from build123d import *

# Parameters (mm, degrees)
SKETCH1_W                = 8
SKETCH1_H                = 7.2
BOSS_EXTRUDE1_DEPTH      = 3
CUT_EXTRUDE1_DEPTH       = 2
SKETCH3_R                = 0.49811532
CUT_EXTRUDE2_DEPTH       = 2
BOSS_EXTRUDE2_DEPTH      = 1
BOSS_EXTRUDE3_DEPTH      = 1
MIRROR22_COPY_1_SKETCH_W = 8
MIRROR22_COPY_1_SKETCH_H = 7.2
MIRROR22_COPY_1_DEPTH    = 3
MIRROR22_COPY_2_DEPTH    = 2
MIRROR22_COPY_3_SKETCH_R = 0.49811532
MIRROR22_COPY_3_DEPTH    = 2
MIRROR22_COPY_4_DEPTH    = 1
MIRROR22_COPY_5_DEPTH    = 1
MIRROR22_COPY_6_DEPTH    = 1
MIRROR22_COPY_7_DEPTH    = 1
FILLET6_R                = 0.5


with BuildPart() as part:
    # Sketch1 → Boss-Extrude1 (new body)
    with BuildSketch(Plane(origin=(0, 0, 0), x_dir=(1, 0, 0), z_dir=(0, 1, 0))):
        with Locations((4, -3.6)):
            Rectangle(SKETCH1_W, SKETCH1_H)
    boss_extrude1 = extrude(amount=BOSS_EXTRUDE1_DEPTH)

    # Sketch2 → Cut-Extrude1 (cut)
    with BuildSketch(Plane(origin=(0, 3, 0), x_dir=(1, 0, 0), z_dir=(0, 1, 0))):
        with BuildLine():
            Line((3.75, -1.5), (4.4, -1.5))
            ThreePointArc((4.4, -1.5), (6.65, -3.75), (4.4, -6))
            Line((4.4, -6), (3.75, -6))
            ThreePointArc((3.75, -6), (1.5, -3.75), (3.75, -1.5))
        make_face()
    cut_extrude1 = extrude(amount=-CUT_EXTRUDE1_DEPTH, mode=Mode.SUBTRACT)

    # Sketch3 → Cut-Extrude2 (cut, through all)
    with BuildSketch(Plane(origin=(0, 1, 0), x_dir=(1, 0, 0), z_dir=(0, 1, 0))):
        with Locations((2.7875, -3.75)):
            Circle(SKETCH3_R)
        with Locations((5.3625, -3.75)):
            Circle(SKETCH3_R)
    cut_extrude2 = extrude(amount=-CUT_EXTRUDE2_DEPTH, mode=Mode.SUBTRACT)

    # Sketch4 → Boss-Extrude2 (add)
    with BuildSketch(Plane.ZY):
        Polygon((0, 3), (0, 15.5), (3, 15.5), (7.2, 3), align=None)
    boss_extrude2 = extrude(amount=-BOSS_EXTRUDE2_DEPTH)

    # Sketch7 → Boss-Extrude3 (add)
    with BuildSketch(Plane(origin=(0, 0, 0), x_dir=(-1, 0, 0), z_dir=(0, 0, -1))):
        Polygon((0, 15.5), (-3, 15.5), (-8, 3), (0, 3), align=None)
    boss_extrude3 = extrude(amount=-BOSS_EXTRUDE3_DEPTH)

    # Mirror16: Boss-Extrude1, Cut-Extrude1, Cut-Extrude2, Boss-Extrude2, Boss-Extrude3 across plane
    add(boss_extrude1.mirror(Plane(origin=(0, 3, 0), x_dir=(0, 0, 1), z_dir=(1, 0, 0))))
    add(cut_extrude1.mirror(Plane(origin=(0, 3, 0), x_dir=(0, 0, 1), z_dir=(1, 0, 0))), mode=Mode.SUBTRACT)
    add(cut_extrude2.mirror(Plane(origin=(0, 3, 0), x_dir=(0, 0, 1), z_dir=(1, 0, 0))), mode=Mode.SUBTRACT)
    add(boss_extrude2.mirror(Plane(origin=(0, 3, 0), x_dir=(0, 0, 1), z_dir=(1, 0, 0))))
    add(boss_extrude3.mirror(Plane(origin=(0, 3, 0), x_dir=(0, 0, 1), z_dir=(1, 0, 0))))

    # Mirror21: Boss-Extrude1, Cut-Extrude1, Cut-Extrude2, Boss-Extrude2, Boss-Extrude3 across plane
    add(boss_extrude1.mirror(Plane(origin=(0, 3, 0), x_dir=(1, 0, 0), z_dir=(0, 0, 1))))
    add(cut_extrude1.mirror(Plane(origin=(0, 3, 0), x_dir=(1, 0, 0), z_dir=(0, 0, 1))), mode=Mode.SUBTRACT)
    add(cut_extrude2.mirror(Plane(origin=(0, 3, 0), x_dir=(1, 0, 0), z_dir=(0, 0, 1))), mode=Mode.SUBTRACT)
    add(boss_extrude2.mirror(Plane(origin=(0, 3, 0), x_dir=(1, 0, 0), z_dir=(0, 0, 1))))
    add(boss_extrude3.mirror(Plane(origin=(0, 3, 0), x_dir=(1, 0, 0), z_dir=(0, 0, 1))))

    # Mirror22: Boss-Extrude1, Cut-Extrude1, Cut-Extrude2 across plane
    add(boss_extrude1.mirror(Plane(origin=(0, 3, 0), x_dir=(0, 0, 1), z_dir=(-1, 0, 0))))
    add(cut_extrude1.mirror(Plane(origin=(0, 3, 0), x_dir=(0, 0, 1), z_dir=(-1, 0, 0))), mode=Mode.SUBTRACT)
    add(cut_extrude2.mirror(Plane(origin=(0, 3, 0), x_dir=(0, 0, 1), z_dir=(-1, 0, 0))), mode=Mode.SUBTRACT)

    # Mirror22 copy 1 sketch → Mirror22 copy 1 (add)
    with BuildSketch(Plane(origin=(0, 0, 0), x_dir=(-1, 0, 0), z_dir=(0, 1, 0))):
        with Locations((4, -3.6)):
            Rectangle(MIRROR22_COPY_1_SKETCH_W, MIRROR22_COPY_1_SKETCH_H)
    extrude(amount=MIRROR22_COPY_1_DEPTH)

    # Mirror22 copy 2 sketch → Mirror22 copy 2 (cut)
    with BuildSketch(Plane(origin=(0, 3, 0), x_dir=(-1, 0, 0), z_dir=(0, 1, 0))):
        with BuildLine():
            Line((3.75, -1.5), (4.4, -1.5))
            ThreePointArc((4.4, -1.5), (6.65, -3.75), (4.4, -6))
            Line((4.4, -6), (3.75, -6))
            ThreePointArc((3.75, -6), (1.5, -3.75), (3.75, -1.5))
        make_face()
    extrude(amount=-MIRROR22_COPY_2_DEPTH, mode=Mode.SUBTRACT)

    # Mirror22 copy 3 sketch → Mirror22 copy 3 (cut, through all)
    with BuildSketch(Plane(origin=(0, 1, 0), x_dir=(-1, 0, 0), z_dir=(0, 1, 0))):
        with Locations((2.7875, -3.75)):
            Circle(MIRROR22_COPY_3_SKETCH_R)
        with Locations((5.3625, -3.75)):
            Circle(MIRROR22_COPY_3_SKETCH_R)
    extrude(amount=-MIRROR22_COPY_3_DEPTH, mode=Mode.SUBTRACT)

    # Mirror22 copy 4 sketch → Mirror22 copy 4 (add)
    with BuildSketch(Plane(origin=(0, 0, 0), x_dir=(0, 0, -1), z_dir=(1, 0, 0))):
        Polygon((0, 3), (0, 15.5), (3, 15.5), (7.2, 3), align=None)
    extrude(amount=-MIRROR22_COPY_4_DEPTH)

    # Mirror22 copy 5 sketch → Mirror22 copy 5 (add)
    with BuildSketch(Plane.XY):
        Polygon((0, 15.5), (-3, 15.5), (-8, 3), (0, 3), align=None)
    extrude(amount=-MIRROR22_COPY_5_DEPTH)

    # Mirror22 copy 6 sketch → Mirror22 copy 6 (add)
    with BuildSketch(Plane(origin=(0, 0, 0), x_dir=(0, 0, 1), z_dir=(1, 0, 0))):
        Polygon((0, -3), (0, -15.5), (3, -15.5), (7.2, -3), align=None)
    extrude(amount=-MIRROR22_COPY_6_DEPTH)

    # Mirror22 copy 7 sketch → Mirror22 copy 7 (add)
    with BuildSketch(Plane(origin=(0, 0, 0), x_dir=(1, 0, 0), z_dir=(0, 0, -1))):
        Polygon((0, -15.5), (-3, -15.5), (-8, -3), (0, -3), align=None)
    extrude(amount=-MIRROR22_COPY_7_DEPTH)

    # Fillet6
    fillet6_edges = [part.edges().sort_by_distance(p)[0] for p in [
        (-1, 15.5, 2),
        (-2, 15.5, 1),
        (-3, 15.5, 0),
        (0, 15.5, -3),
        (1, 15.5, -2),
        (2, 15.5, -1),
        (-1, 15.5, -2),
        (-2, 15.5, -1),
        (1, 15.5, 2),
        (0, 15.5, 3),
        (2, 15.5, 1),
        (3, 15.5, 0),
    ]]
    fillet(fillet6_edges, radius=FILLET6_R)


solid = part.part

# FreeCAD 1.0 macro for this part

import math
import FreeCAD as App
import Part
import Sketcher
from FreeCAD import Vector
Q = App.Units.Quantity


def edges_at(feature, points):
    """Names of the edges that pass closest to the given points."""
    edges = feature.Shape.Edges
    near = lambda p: min(range(len(edges)), key=lambda i: edges[i].distToShape(Part.Vertex(*p))[0])
    return sorted({f"Edge{near(p) + 1}" for p in points})

doc = App.newDocument("Part")
body = doc.addObject("PartDesign::Body", "Body")

sketch1 = body.newObject("Sketcher::SketchObject", "Sketch")
sketch1.AttachmentSupport = (doc.getObject("XZ_Plane"), [""])
sketch1.MapMode = "FlatFace"
sketch1.addGeometry([
    Part.LineSegment(Vector(0, 0, 0), Vector(0, 7, 0)),
    Part.LineSegment(Vector(0, 7, 0), Vector(8, 7, 0)),
    Part.LineSegment(Vector(8, 7, 0), Vector(8, 0, 0)),
    Part.LineSegment(Vector(8, 0, 0), Vector(0, 0, 0)),
], False)
sketch1.addConstraint([
    Sketcher.Constraint("Coincident", 0, 2, 1, 1),
    Sketcher.Constraint("Coincident", 1, 2, 2, 1),
    Sketcher.Constraint("Coincident", 2, 2, 3, 1),
    Sketcher.Constraint("Coincident", 3, 2, 0, 1),
    Sketcher.Constraint("Vertical", 0),
    Sketcher.Constraint("Horizontal", 1),
    Sketcher.Constraint("Vertical", 2),
    Sketcher.Constraint("Horizontal", 3),
    Sketcher.Constraint("Coincident", 3, 2, -1, 1),
    Sketcher.Constraint("DistanceX", 1, 1, 1, 2, Q("8 mm")),
    Sketcher.Constraint("DistanceY", 0, 1, 0, 2, Q("7.2 mm")),
])
pad1 = body.newObject("PartDesign::Pad", "Pad")
pad1.Profile = sketch1
pad1.Length = 3
pad1.Reversed = True

sketch2 = body.newObject("Sketcher::SketchObject", "Sketch001")
sketch2.AttachmentSupport = (doc.getObject("XZ_Plane"), [""])
sketch2.MapMode = "FlatFace"
sketch2.AttachmentOffset = App.Placement(Vector(0, 0, -3), App.Rotation())
sketch2.addGeometry([
    Part.LineSegment(Vector(4.4, 1.5, 0), Vector(3.8, 1.5, 0)),
    Part.ArcOfCircle(Part.Circle(Vector(3.8, 3.8, 0), Vector(0, 0, 1), 2.2), math.radians(90), math.radians(270)),
    Part.LineSegment(Vector(3.8, 6, 0), Vector(4.4, 6, 0)),
    Part.ArcOfCircle(Part.Circle(Vector(4.4, 3.8, 0), Vector(0, 0, 1), 2.2), math.radians(-90), math.radians(90)),
], False)
sketch2.addConstraint([
    Sketcher.Constraint("Tangent", 0, 2, 1, 2),
    Sketcher.Constraint("Tangent", 1, 1, 2, 1),
    Sketcher.Constraint("Tangent", 2, 2, 3, 2),
    Sketcher.Constraint("Tangent", 3, 1, 0, 1),
    Sketcher.Constraint("Horizontal", 0),
    Sketcher.Constraint("Horizontal", 2),
    Sketcher.Constraint("Radius", 1, Q("2.25 mm")),
    Sketcher.Constraint("DistanceY", -1, 1, 1, 1, Q("6 mm")),
    Sketcher.Constraint("DistanceX", 0, 2, 0, 1, Q("0.65 mm")),
    Sketcher.Constraint("DistanceX", -1, 1, 3, 3, Q("4.4 mm")),
])
pocket1 = body.newObject("PartDesign::Pocket", "Pocket")
pocket1.Profile = sketch2
pocket1.Length = 2
pocket1.Reversed = True

sketch3 = body.newObject("Sketcher::SketchObject", "Sketch002")
sketch3.AttachmentSupport = (doc.getObject("XZ_Plane"), [""])
sketch3.MapMode = "FlatFace"
sketch3.AttachmentOffset = App.Placement(Vector(0, 0, -1), App.Rotation())
sketch3.addGeometry([
    Part.Circle(Vector(2.79, 3.75, 0), Vector(0, 0, 1), 0.5),
    Part.Circle(Vector(5.36, 3.75, 0), Vector(0, 0, 1), 0.5),
], False)
sketch3.addConstraint([
    Sketcher.Constraint("Equal", 0, 1),
    Sketcher.Constraint("Horizontal", 0, 3, 1, 3),
    Sketcher.Constraint("Diameter", 0, Q("0.996231 mm")),
    Sketcher.Constraint("DistanceY", -1, 1, 0, 3, Q("3.75 mm")),
    Sketcher.Constraint("DistanceX", 0, 3, 1, 3, Q("2.575 mm")),
    Sketcher.Constraint("DistanceX", -1, 1, 0, 3, Q("2.7875 mm")),
])
pocket2 = body.newObject("PartDesign::Pocket", "Pocket001")
pocket2.Profile = sketch3
pocket2.Type = "ThroughAll"
pocket2.Reversed = True

sketch4 = body.newObject("Sketcher::SketchObject", "Sketch003")
sketch4.AttachmentSupport = (doc.getObject("YZ_Plane"), [""])
sketch4.MapMode = "FlatFace"
sketch4.addGeometry([
    Part.LineSegment(Vector(15.5, 0, 0), Vector(3, 0, 0)),
    Part.LineSegment(Vector(3, 0, 0), Vector(3, 7.2, 0)),
    Part.LineSegment(Vector(3, 7.2, 0), Vector(15.5, 3, 0)),
    Part.LineSegment(Vector(15.5, 3, 0), Vector(15.5, 0, 0)),
], False)
sketch4.addConstraint([
    Sketcher.Constraint("Coincident", 0, 2, 1, 1),
    Sketcher.Constraint("Coincident", 1, 2, 2, 1),
    Sketcher.Constraint("Coincident", 2, 2, 3, 1),
    Sketcher.Constraint("Coincident", 3, 2, 0, 1),
    Sketcher.Constraint("Horizontal", 0),
    Sketcher.Constraint("Vertical", 1),
    Sketcher.Constraint("Vertical", 3),
    Sketcher.Constraint("PointOnObject", 0, 2, -1),
    Sketcher.Constraint("DistanceY", 3, 2, 3, 1, Q("3 mm")),
    Sketcher.Constraint("DistanceX", 0, 2, 0, 1, Q("12.5 mm")),
    Sketcher.Constraint("DistanceY", 1, 1, 1, 2, Q("7.2 mm")),
    Sketcher.Constraint("DistanceX", -1, 1, 0, 2, Q("3 mm")),
])
pad2 = body.newObject("PartDesign::Pad", "Pad001")
pad2.Profile = sketch4
pad2.Length = 1

sketch5 = body.newObject("Sketcher::SketchObject", "Sketch004")
sketch5.AttachmentSupport = (doc.getObject("XY_Plane"), [""])
sketch5.MapMode = "FlatFace"
sketch5.addGeometry([
    Part.LineSegment(Vector(0, 15.5, 0), Vector(3, 15.5, 0)),
    Part.LineSegment(Vector(3, 15.5, 0), Vector(8, 3, 0)),
    Part.LineSegment(Vector(8, 3, 0), Vector(0, 3, 0)),
    Part.LineSegment(Vector(0, 3, 0), Vector(0, 15.5, 0)),
], False)
sketch5.addConstraint([
    Sketcher.Constraint("Coincident", 0, 2, 1, 1),
    Sketcher.Constraint("Coincident", 1, 2, 2, 1),
    Sketcher.Constraint("Coincident", 2, 2, 3, 1),
    Sketcher.Constraint("Coincident", 3, 2, 0, 1),
    Sketcher.Constraint("Horizontal", 0),
    Sketcher.Constraint("Horizontal", 2),
    Sketcher.Constraint("Vertical", 3),
    Sketcher.Constraint("PointOnObject", 2, 2, -2),
    Sketcher.Constraint("DistanceX", 0, 1, 0, 2, Q("3 mm")),
    Sketcher.Constraint("DistanceX", 2, 2, 2, 1, Q("8 mm")),
    Sketcher.Constraint("DistanceY", 3, 1, 3, 2, Q("12.5 mm")),
    Sketcher.Constraint("DistanceY", -1, 1, 1, 2, Q("3 mm")),
])
pad3 = body.newObject("PartDesign::Pad", "Pad002")
pad3.Profile = sketch5
pad3.Length = 1
doc.recompute()

mirrored = body.newObject("PartDesign::Mirrored", "Mirrored")
mirrored.Originals = [pad1, pocket1, pocket2, pad2, pad3]
mirrored.MirrorPlane = (doc.getObject("YZ_Plane"), [""])
body.Tip = mirrored
doc.recompute()

mirrored2 = body.newObject("PartDesign::Mirrored", "Mirrored001")
mirrored2.Originals = [pad1, pocket1, pocket2, pad2, pad3]
mirrored2.MirrorPlane = (doc.getObject("XY_Plane"), [""])
body.Tip = mirrored2
doc.recompute()

mirrored3 = body.newObject("PartDesign::Mirrored", "Mirrored002")
mirrored3.Originals = [pad1, pocket1, pocket2]
mirrored3.MirrorPlane = (doc.getObject("YZ_Plane"), [""])
body.Tip = mirrored3

sketch6 = body.newObject("Sketcher::SketchObject", "Sketch005")
sketch6.AttachmentSupport = (doc.getObject("XZ_Plane"), [""])
sketch6.MapMode = "FlatFace"
sketch6.addGeometry([
    Part.LineSegment(Vector(0, 0, 0), Vector(0, -7, 0)),
    Part.LineSegment(Vector(0, -7, 0), Vector(-8, -7, 0)),
    Part.LineSegment(Vector(-8, -7, 0), Vector(-8, 0, 0)),
    Part.LineSegment(Vector(-8, 0, 0), Vector(0, 0, 0)),
], False)
sketch6.addConstraint([
    Sketcher.Constraint("Coincident", 0, 2, 1, 1),
    Sketcher.Constraint("Coincident", 1, 2, 2, 1),
    Sketcher.Constraint("Coincident", 2, 2, 3, 1),
    Sketcher.Constraint("Coincident", 3, 2, 0, 1),
    Sketcher.Constraint("Vertical", 0),
    Sketcher.Constraint("Horizontal", 1),
    Sketcher.Constraint("Vertical", 2),
    Sketcher.Constraint("Horizontal", 3),
    Sketcher.Constraint("Coincident", 3, 2, -1, 1),
    Sketcher.Constraint("DistanceX", 1, 2, 1, 1, Q("8 mm")),
    Sketcher.Constraint("DistanceY", 0, 2, 0, 1, Q("7.2 mm")),
])
pad4 = body.newObject("PartDesign::Pad", "Pad003")
pad4.Profile = sketch6
pad4.Length = 3
pad4.Reversed = True

sketch7 = body.newObject("Sketcher::SketchObject", "Sketch006")
sketch7.AttachmentSupport = (doc.getObject("XZ_Plane"), [""])
sketch7.MapMode = "FlatFace"
sketch7.AttachmentOffset = App.Placement(Vector(0, 0, -3), App.Rotation())
sketch7.addGeometry([
    Part.LineSegment(Vector(-4.4, -1.5, 0), Vector(-3.8, -1.5, 0)),
    Part.ArcOfCircle(Part.Circle(Vector(-3.8, -3.8, 0), Vector(0, 0, 1), 2.2), math.radians(-90), math.radians(90)),
    Part.LineSegment(Vector(-3.8, -6, 0), Vector(-4.4, -6, 0)),
    Part.ArcOfCircle(Part.Circle(Vector(-4.4, -3.8, 0), Vector(0, 0, 1), 2.2), math.radians(90), math.radians(270)),
], False)
sketch7.addConstraint([
    Sketcher.Constraint("Tangent", 0, 2, 1, 2),
    Sketcher.Constraint("Tangent", 1, 1, 2, 1),
    Sketcher.Constraint("Tangent", 2, 2, 3, 2),
    Sketcher.Constraint("Tangent", 3, 1, 0, 1),
    Sketcher.Constraint("Horizontal", 0),
    Sketcher.Constraint("Horizontal", 2),
    Sketcher.Constraint("Radius", 1, Q("2.25 mm")),
    Sketcher.Constraint("DistanceY", 1, 1, -1, 1, Q("6 mm")),
    Sketcher.Constraint("DistanceX", 0, 1, 0, 2, Q("0.65 mm")),
    Sketcher.Constraint("DistanceX", 3, 3, -1, 1, Q("4.4 mm")),
])
pocket3 = body.newObject("PartDesign::Pocket", "Pocket002")
pocket3.Profile = sketch7
pocket3.Length = 2
pocket3.Reversed = True

sketch8 = body.newObject("Sketcher::SketchObject", "Sketch007")
sketch8.AttachmentSupport = (doc.getObject("XZ_Plane"), [""])
sketch8.MapMode = "FlatFace"
sketch8.AttachmentOffset = App.Placement(Vector(0, 0, -1), App.Rotation())
sketch8.addGeometry([
    Part.Circle(Vector(-2.79, -3.75, 0), Vector(0, 0, 1), 0.5),
    Part.Circle(Vector(-5.36, -3.75, 0), Vector(0, 0, 1), 0.5),
], False)
sketch8.addConstraint([
    Sketcher.Constraint("Equal", 0, 1),
    Sketcher.Constraint("Horizontal", 0, 3, 1, 3),
    Sketcher.Constraint("Diameter", 0, Q("0.996231 mm")),
    Sketcher.Constraint("DistanceY", 0, 3, -1, 1, Q("3.75 mm")),
    Sketcher.Constraint("DistanceX", 1, 3, 0, 3, Q("2.575 mm")),
    Sketcher.Constraint("DistanceX", 0, 3, -1, 1, Q("2.7875 mm")),
])
pocket4 = body.newObject("PartDesign::Pocket", "Pocket003")
pocket4.Profile = sketch8
pocket4.Type = "ThroughAll"
pocket4.Reversed = True

sketch9 = body.newObject("Sketcher::SketchObject", "Sketch008")
sketch9.AttachmentSupport = (doc.getObject("YZ_Plane"), [""])
sketch9.MapMode = "FlatFace"
sketch9.addGeometry([
    Part.LineSegment(Vector(15.5, 0, 0), Vector(3, 0, 0)),
    Part.LineSegment(Vector(3, 0, 0), Vector(3, -7.2, 0)),
    Part.LineSegment(Vector(3, -7.2, 0), Vector(15.5, -3, 0)),
    Part.LineSegment(Vector(15.5, -3, 0), Vector(15.5, 0, 0)),
], False)
sketch9.addConstraint([
    Sketcher.Constraint("Coincident", 0, 2, 1, 1),
    Sketcher.Constraint("Coincident", 1, 2, 2, 1),
    Sketcher.Constraint("Coincident", 2, 2, 3, 1),
    Sketcher.Constraint("Coincident", 3, 2, 0, 1),
    Sketcher.Constraint("Horizontal", 0),
    Sketcher.Constraint("Vertical", 1),
    Sketcher.Constraint("Vertical", 3),
    Sketcher.Constraint("PointOnObject", 0, 2, -1),
    Sketcher.Constraint("DistanceY", 3, 1, 3, 2, Q("3 mm")),
    Sketcher.Constraint("DistanceX", 0, 2, 0, 1, Q("12.5 mm")),
    Sketcher.Constraint("DistanceY", 1, 2, 1, 1, Q("7.2 mm")),
    Sketcher.Constraint("DistanceX", -1, 1, 0, 2, Q("3 mm")),
])
pad5 = body.newObject("PartDesign::Pad", "Pad004")
pad5.Profile = sketch9
pad5.Length = 1
pad5.Reversed = True

sketch10 = body.newObject("Sketcher::SketchObject", "Sketch009")
sketch10.AttachmentSupport = (doc.getObject("XY_Plane"), [""])
sketch10.MapMode = "FlatFace"
sketch10.addGeometry([
    Part.LineSegment(Vector(0, 15.5, 0), Vector(-3, 15.5, 0)),
    Part.LineSegment(Vector(-3, 15.5, 0), Vector(-8, 3, 0)),
    Part.LineSegment(Vector(-8, 3, 0), Vector(0, 3, 0)),
    Part.LineSegment(Vector(0, 3, 0), Vector(0, 15.5, 0)),
], False)
sketch10.addConstraint([
    Sketcher.Constraint("Coincident", 0, 2, 1, 1),
    Sketcher.Constraint("Coincident", 1, 2, 2, 1),
    Sketcher.Constraint("Coincident", 2, 2, 3, 1),
    Sketcher.Constraint("Coincident", 3, 2, 0, 1),
    Sketcher.Constraint("Horizontal", 0),
    Sketcher.Constraint("Horizontal", 2),
    Sketcher.Constraint("Vertical", 3),
    Sketcher.Constraint("PointOnObject", 2, 2, -2),
    Sketcher.Constraint("DistanceX", 0, 2, 0, 1, Q("3 mm")),
    Sketcher.Constraint("DistanceX", 2, 1, 2, 2, Q("8 mm")),
    Sketcher.Constraint("DistanceY", 3, 1, 3, 2, Q("12.5 mm")),
    Sketcher.Constraint("DistanceY", -1, 1, 1, 2, Q("3 mm")),
])
pad6 = body.newObject("PartDesign::Pad", "Pad005")
pad6.Profile = sketch10
pad6.Length = 1
pad6.Reversed = True

sketch11 = body.newObject("Sketcher::SketchObject", "Sketch010")
sketch11.AttachmentSupport = (doc.getObject("YZ_Plane"), [""])
sketch11.MapMode = "FlatFace"
sketch11.addGeometry([
    Part.LineSegment(Vector(3, 0, 0), Vector(15.5, 0, 0)),
    Part.LineSegment(Vector(15.5, 0, 0), Vector(15.5, 3, 0)),
    Part.LineSegment(Vector(15.5, 3, 0), Vector(3, 7.2, 0)),
    Part.LineSegment(Vector(3, 7.2, 0), Vector(3, 0, 0)),
], False)
sketch11.addConstraint([
    Sketcher.Constraint("Coincident", 0, 2, 1, 1),
    Sketcher.Constraint("Coincident", 1, 2, 2, 1),
    Sketcher.Constraint("Coincident", 2, 2, 3, 1),
    Sketcher.Constraint("Coincident", 3, 2, 0, 1),
    Sketcher.Constraint("Horizontal", 0),
    Sketcher.Constraint("Vertical", 1),
    Sketcher.Constraint("Vertical", 3),
    Sketcher.Constraint("PointOnObject", 0, 2, -1),
    Sketcher.Constraint("DistanceY", 1, 1, 1, 2, Q("3 mm")),
    Sketcher.Constraint("DistanceX", 0, 1, 0, 2, Q("12.5 mm")),
    Sketcher.Constraint("DistanceY", 3, 2, 3, 1, Q("7.2 mm")),
    Sketcher.Constraint("DistanceX", -1, 1, 2, 2, Q("3 mm")),
])
pad7 = body.newObject("PartDesign::Pad", "Pad006")
pad7.Profile = sketch11
pad7.Length = 1
pad7.Reversed = True

sketch12 = body.newObject("Sketcher::SketchObject", "Sketch011")
sketch12.AttachmentSupport = (doc.getObject("XY_Plane"), [""])
sketch12.MapMode = "FlatFace"
sketch12.addGeometry([
    Part.LineSegment(Vector(-3, 15.5, 0), Vector(0, 15.5, 0)),
    Part.LineSegment(Vector(0, 15.5, 0), Vector(0, 3, 0)),
    Part.LineSegment(Vector(0, 3, 0), Vector(-8, 3, 0)),
    Part.LineSegment(Vector(-8, 3, 0), Vector(-3, 15.5, 0)),
], False)
sketch12.addConstraint([
    Sketcher.Constraint("Coincident", 0, 2, 1, 1),
    Sketcher.Constraint("Coincident", 1, 2, 2, 1),
    Sketcher.Constraint("Coincident", 2, 2, 3, 1),
    Sketcher.Constraint("Coincident", 3, 2, 0, 1),
    Sketcher.Constraint("Horizontal", 0),
    Sketcher.Constraint("Vertical", 1),
    Sketcher.Constraint("Horizontal", 2),
    Sketcher.Constraint("PointOnObject", 0, 2, -2),
    Sketcher.Constraint("DistanceX", 0, 1, 0, 2, Q("3 mm")),
    Sketcher.Constraint("DistanceX", 2, 2, 2, 1, Q("8 mm")),
    Sketcher.Constraint("DistanceY", 1, 2, 1, 1, Q("12.5 mm")),
    Sketcher.Constraint("DistanceY", -1, 1, 1, 2, Q("3 mm")),
])
pad8 = body.newObject("PartDesign::Pad", "Pad007")
pad8.Profile = sketch12
pad8.Length = 1
doc.recompute()

fillet = body.newObject("PartDesign::Fillet", "Fillet")
fillet.Base = (pad8, edges_at(pad8, [
    (-1, 15.5, 2),
    (-2, 15.5, 1),
    (-3, 15.5, 0),
    (0, 15.5, -3),
    (1, 15.5, -2),
    (2, 15.5, -1),
    (-1, 15.5, -2),
    (-2, 15.5, -1),
    (1, 15.5, 2),
    (0, 15.5, 3),
    (2, 15.5, 1),
    (3, 15.5, 0),
]))
fillet.Radius = 0.5

doc.recompute()
